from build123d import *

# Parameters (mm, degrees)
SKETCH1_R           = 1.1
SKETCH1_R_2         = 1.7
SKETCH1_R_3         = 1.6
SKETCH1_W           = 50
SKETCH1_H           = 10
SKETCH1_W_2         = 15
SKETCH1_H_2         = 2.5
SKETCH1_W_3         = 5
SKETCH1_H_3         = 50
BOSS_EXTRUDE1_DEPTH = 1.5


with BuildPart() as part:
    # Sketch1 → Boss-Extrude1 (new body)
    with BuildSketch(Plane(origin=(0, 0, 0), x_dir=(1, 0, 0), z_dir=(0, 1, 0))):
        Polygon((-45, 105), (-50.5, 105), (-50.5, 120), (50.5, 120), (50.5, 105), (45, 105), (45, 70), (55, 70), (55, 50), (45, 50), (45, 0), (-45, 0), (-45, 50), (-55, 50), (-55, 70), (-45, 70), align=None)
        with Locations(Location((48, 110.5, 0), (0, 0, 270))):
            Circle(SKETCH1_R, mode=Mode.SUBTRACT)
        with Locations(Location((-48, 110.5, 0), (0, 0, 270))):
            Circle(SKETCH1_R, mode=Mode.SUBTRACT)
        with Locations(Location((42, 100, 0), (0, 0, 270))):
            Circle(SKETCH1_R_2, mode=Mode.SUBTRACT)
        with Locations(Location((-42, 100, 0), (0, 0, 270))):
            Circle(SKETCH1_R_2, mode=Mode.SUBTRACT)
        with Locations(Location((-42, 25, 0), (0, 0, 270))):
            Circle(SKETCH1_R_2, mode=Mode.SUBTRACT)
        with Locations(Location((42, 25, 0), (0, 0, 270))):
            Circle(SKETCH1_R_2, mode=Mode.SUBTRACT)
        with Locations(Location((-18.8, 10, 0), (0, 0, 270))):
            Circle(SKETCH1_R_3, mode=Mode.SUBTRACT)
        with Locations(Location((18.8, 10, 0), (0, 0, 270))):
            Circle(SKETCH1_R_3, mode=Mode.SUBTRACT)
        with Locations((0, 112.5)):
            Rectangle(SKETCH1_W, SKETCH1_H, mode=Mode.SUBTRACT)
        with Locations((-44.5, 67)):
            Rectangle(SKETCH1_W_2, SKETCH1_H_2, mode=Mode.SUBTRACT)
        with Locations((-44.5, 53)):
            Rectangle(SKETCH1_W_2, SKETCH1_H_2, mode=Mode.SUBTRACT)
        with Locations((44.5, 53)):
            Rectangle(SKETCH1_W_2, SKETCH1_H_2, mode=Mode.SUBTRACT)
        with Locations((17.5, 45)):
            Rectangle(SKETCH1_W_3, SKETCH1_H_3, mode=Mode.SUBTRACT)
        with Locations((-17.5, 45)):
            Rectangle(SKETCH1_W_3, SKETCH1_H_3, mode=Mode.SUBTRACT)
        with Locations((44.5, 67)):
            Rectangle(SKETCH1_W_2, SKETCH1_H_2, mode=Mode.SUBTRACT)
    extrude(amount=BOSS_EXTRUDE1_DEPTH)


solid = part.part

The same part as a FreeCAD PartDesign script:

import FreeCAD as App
import Part
import Sketcher

V = App.Vector
Q = App.Units.Quantity


def add_polygon(sketch, points):
    """Adds a closed chain of lines whose ends are joined by coincident constraints."""
    first, n = sketch.GeometryCount, len(points)
    for a, b in zip(points, points[1:] + points[:1]):
        sketch.addGeometry(Part.LineSegment(App.Vector(*a, 0), App.Vector(*b, 0)), False)
    for i in range(n):
        sketch.addConstraint(Sketcher.Constraint("Coincident", first + i, 2, first + (i + 1) % n, 1))

doc = App.newDocument("Part")
body = doc.addObject("PartDesign::Body", "Body")

# Sketch on XZ plane
sketch1 = body.newObject("Sketcher::SketchObject", "Sketch")
sketch1.AttachmentSupport = (doc.getObject("XZ_Plane"), [""])
sketch1.MapMode = "FlatFace"
add_polygon(sketch1, [(-50.5, -105), (-45, -105), (-45, -70), (-55, -70), (-55, -50), (-45, -50), (-45, 0), (45, 0), (45, -50), (55, -50), (55, -70), (45, -70), (45, -105), (50.5, -105), (50.5, -120), (-50.5, -120)])  # lines 0-15
sketch1.addGeometry(Part.Circle(V(42, -25, 0), V(0, 0, 1), 1.7), False)  # 16
sketch1.addGeometry(Part.Circle(V(18.8, -10, 0), V(0, 0, 1), 1.6), False)  # 17
add_polygon(sketch1, [(37, -51.75), (37, -54.25), (52, -54.25), (52, -51.75)])  # lines 18-21
add_polygon(sketch1, [(15, -20), (15, -70), (20, -70), (20, -20)])  # lines 22-25
sketch1.addGeometry(Part.Circle(V(-18.8, -10, 0), V(0, 0, 1), 1.6), False)  # 26
sketch1.addGeometry(Part.Circle(V(-42, -25, 0), V(0, 0, 1), 1.7), False)  # 27
add_polygon(sketch1, [(-20, -20), (-20, -70), (-15, -70), (-15, -20)])  # lines 28-31
add_polygon(sketch1, [(-52, -51.75), (-52, -54.25), (-37, -54.25), (-37, -51.75)])  # lines 32-35
add_polygon(sketch1, [(37, -65.75), (37, -68.25), (52, -68.25), (52, -65.75)])  # lines 36-39
sketch1.addGeometry(Part.Circle(V(42, -100, 0), V(0, 0, 1), 1.7), False)  # 40
sketch1.addGeometry(Part.Circle(V(48, -110.5, 0), V(0, 0, 1), 1.1), False)  # 41
add_polygon(sketch1, [(-52, -65.75), (-52, -68.25), (-37, -68.25), (-37, -65.75)])  # lines 42-45
add_polygon(sketch1, [(-25, -107.5), (-25, -117.5), (25, -117.5), (25, -107.5)])  # lines 46-49
sketch1.addGeometry(Part.Circle(V(-42, -100, 0), V(0, 0, 1), 1.7), False)  # 50
sketch1.addGeometry(Part.Circle(V(-48, -110.5, 0), V(0, 0, 1), 1.1), False)  # 51
sketch1.addConstraint(Sketcher.Constraint("Horizontal", 0))
sketch1.addConstraint(Sketcher.Constraint("Vertical", 1))
sketch1.addConstraint(Sketcher.Constraint("Horizontal", 2))
sketch1.addConstraint(Sketcher.Constraint("Vertical", 3))
sketch1.addConstraint(Sketcher.Constraint("Horizontal", 4))
sketch1.addConstraint(Sketcher.Constraint("Vertical", 5))
sketch1.addConstraint(Sketcher.Constraint("Horizontal", 6))
sketch1.addConstraint(Sketcher.Constraint("Vertical", 7))
sketch1.addConstraint(Sketcher.Constraint("Horizontal", 8))
sketch1.addConstraint(Sketcher.Constraint("Vertical", 9))
sketch1.addConstraint(Sketcher.Constraint("Horizontal", 10))
sketch1.addConstraint(Sketcher.Constraint("Vertical", 11))
sketch1.addConstraint(Sketcher.Constraint("Horizontal", 12))
sketch1.addConstraint(Sketcher.Constraint("Vertical", 13))
sketch1.addConstraint(Sketcher.Constraint("Horizontal", 14))
sketch1.addConstraint(Sketcher.Constraint("Vertical", 15))
sketch1.addConstraint(Sketcher.Constraint("Vertical", 18))
sketch1.addConstraint(Sketcher.Constraint("Horizontal", 19))
sketch1.addConstraint(Sketcher.Constraint("Vertical", 20))
sketch1.addConstraint(Sketcher.Constraint("Horizontal", 21))
sketch1.addConstraint(Sketcher.Constraint("Vertical", 22))
sketch1.addConstraint(Sketcher.Constraint("Horizontal", 23))
sketch1.addConstraint(Sketcher.Constraint("Vertical", 24))
sketch1.addConstraint(Sketcher.Constraint("Horizontal", 25))
sketch1.addConstraint(Sketcher.Constraint("Vertical", 28))
sketch1.addConstraint(Sketcher.Constraint("Horizontal", 29))
sketch1.addConstraint(Sketcher.Constraint("Vertical", 30))
sketch1.addConstraint(Sketcher.Constraint("Horizontal", 31))
sketch1.addConstraint(Sketcher.Constraint("Vertical", 32))
sketch1.addConstraint(Sketcher.Constraint("Horizontal", 33))
sketch1.addConstraint(Sketcher.Constraint("Vertical", 34))
sketch1.addConstraint(Sketcher.Constraint("Horizontal", 35))
sketch1.addConstraint(Sketcher.Constraint("Vertical", 36))
sketch1.addConstraint(Sketcher.Constraint("Horizontal", 37))
sketch1.addConstraint(Sketcher.Constraint("Vertical", 38))
sketch1.addConstraint(Sketcher.Constraint("Horizontal", 39))
sketch1.addConstraint(Sketcher.Constraint("Vertical", 42))
sketch1.addConstraint(Sketcher.Constraint("Horizontal", 43))
sketch1.addConstraint(Sketcher.Constraint("Vertical", 44))
sketch1.addConstraint(Sketcher.Constraint("Horizontal", 45))
sketch1.addConstraint(Sketcher.Constraint("Vertical", 46))
sketch1.addConstraint(Sketcher.Constraint("Horizontal", 47))
sketch1.addConstraint(Sketcher.Constraint("Vertical", 48))
sketch1.addConstraint(Sketcher.Constraint("Horizontal", 49))
sketch1.addConstraint(Sketcher.Constraint("Equal", 17, 26))
sketch1.addConstraint(Sketcher.Constraint("Equal", 16, 27))
sketch1.addConstraint(Sketcher.Constraint("Equal", 27, 40))
sketch1.addConstraint(Sketcher.Constraint("Equal", 40, 50))
sketch1.addConstraint(Sketcher.Constraint("Equal", 41, 51))
sketch1.addConstraint(Sketcher.Constraint("Symmetric", 5, 2, 6, 2, -1, 1))
sketch1.addConstraint(Sketcher.Constraint("Symmetric", 17, 3, 26, 3, -2))
sketch1.addConstraint(Sketcher.Constraint("Symmetric", 16, 3, 27, 3, -2))
sketch1.addConstraint(Sketcher.Constraint("Symmetric", 40, 3, 50, 3, -2))
sketch1.addConstraint(Sketcher.Constraint("Symmetric", 41, 3, 51, 3, -2))
sketch1.addConstraint(Sketcher.Constraint("Symmetric", 3, 2, 8, 2, -2))
sketch1.addConstraint(Sketcher.Constraint("Symmetric", 1, 2, 10, 2, -2))
sketch1.addConstraint(Sketcher.Constraint("Symmetric", 12, 2, 15, 2, -2))
sketch1.addConstraint(Sketcher.Constraint("Symmetric", 23, 2, 28, 2, -2))
sketch1.addConstraint(Sketcher.Constraint("Symmetric", 25, 2, 30, 2, -2))
sketch1.addConstraint(Sketcher.Constraint("Symmetric", 19, 2, 32, 2, -2))
sketch1.addConstraint(Sketcher.Constraint("Symmetric", 21, 2, 34, 2, -2))
sketch1.addConstraint(Sketcher.Constraint("Symmetric", 37, 2, 42, 2, -2))
sketch1.addConstraint(Sketcher.Constraint("Symmetric", 39, 2, 44, 2, -2))
sketch1.addConstraint(Sketcher.Constraint("Horizontal", 10, 2, 22, 2))
sketch1.addConstraint(Sketcher.Constraint("Vertical", 16, 3, 40, 3))
sketch1.addConstraint(Sketcher.Constraint("Vertical", 1, 2, 4, 2))
sketch1.addConstraint(Sketcher.Constraint("Vertical", 21, 2, 36, 2))
sketch1.addConstraint(Sketcher.Constraint("Vertical", 20, 2, 37, 2))
sketch1.addConstraint(Sketcher.Constraint("Equal", 49, 5))
sketch1.addConstraint(Sketcher.Constraint("Equal", 45, 13))
sketch1.addConstraint(Sketcher.Constraint("Equal", 7, 22))
sketch1.addConstraint(Sketcher.Constraint("Equal", 34, 36))
sketch1.addConstraint(Sketcher.Constraint("Equal", 10, 46))
sketch1.addConstraint(Sketcher.Constraint("Diameter", 16, Q("3.4 mm")))
sketch1.addConstraint(Sketcher.Constraint("Diameter", 17, Q("3.2 mm")))
sketch1.addConstraint(Sketcher.Constraint("Diameter", 41, Q("2.2 mm")))
sketch1.addConstraint(Sketcher.Constraint("DistanceX", 2, 2, 2, 1, Q("10 mm")))
sketch1.addConstraint(Sketcher.Constraint("DistanceX", 6, 1, 6, 2, Q("90 mm")))
sketch1.addConstraint(Sketcher.Constraint("DistanceX", 14, 2, 14, 1, Q("101 mm")))
sketch1.addConstraint(Sketcher.Constraint("DistanceX", 19, 1, 19, 2, Q("15 mm")))
sketch1.addConstraint(Sketcher.Constraint("DistanceX", 23, 1, 23, 2, Q("5 mm")))
sketch1.addConstraint(Sketcher.Constraint("DistanceX", 47, 1, 47, 2, Q("50 mm")))
sketch1.addConstraint(Sketcher.Constraint("DistanceY", 1, 1, 1, 2, Q("35 mm")))
sketch1.addConstraint(Sketcher.Constraint("DistanceY", 3, 1, 3, 2, Q("20 mm")))
sketch1.addConstraint(Sketcher.Constraint("DistanceY", 18, 2, 18, 1, Q("2.5 mm")))
sketch1.addConstraint(Sketcher.Constraint("DistanceX", -1, 1, 16, 3, Q("42 mm")))
sketch1.addConstraint(Sketcher.Constraint("DistanceY", 16, 3, -1, 1, Q("25 mm")))
sketch1.addConstraint(Sketcher.Constraint("DistanceY", 17, 3, -1, 1, Q("10 mm")))
sketch1.addConstraint(Sketcher.Constraint("DistanceY", 40, 3, -1, 1, Q("100 mm")))
sketch1.addConstraint(Sketcher.Constraint("DistanceX", -1, 1, 41, 3, Q("48 mm")))
sketch1.addConstraint(Sketcher.Constraint("DistanceX", -1, 1, 18, 2, Q("37 mm")))
sketch1.addConstraint(Sketcher.Constraint("DistanceX", -1, 1, 22, 2, Q("15 mm")))
sketch1.addConstraint(Sketcher.Constraint("DistanceX", 46, 2, -1, 1, Q("25 mm")))
sketch1.addConstraint(Sketcher.Constraint("DistanceY", 36, 2, 18, 2, Q("14 mm")))
sketch1.addConstraint(Sketcher.Constraint("DistanceY", 46, 2, 51, 3, Q("7 mm")))
sketch1.addConstraint(Sketcher.Constraint("DistanceX", -1, 1, 17, 3, Q("18.8 mm")))
sketch1.addConstraint(Sketcher.Constraint("DistanceY", 41, 3, -1, 1, Q("110.5 mm")))
sketch1.addConstraint(Sketcher.Constraint("DistanceY", 18, 2, -1, 1, Q("54.25 mm")))
pad1 = body.newObject("PartDesign::Pad", "Pad")
pad1.Profile = sketch1
pad1.Length = 1.5
pad1.Reversed = True

doc.recompute()
